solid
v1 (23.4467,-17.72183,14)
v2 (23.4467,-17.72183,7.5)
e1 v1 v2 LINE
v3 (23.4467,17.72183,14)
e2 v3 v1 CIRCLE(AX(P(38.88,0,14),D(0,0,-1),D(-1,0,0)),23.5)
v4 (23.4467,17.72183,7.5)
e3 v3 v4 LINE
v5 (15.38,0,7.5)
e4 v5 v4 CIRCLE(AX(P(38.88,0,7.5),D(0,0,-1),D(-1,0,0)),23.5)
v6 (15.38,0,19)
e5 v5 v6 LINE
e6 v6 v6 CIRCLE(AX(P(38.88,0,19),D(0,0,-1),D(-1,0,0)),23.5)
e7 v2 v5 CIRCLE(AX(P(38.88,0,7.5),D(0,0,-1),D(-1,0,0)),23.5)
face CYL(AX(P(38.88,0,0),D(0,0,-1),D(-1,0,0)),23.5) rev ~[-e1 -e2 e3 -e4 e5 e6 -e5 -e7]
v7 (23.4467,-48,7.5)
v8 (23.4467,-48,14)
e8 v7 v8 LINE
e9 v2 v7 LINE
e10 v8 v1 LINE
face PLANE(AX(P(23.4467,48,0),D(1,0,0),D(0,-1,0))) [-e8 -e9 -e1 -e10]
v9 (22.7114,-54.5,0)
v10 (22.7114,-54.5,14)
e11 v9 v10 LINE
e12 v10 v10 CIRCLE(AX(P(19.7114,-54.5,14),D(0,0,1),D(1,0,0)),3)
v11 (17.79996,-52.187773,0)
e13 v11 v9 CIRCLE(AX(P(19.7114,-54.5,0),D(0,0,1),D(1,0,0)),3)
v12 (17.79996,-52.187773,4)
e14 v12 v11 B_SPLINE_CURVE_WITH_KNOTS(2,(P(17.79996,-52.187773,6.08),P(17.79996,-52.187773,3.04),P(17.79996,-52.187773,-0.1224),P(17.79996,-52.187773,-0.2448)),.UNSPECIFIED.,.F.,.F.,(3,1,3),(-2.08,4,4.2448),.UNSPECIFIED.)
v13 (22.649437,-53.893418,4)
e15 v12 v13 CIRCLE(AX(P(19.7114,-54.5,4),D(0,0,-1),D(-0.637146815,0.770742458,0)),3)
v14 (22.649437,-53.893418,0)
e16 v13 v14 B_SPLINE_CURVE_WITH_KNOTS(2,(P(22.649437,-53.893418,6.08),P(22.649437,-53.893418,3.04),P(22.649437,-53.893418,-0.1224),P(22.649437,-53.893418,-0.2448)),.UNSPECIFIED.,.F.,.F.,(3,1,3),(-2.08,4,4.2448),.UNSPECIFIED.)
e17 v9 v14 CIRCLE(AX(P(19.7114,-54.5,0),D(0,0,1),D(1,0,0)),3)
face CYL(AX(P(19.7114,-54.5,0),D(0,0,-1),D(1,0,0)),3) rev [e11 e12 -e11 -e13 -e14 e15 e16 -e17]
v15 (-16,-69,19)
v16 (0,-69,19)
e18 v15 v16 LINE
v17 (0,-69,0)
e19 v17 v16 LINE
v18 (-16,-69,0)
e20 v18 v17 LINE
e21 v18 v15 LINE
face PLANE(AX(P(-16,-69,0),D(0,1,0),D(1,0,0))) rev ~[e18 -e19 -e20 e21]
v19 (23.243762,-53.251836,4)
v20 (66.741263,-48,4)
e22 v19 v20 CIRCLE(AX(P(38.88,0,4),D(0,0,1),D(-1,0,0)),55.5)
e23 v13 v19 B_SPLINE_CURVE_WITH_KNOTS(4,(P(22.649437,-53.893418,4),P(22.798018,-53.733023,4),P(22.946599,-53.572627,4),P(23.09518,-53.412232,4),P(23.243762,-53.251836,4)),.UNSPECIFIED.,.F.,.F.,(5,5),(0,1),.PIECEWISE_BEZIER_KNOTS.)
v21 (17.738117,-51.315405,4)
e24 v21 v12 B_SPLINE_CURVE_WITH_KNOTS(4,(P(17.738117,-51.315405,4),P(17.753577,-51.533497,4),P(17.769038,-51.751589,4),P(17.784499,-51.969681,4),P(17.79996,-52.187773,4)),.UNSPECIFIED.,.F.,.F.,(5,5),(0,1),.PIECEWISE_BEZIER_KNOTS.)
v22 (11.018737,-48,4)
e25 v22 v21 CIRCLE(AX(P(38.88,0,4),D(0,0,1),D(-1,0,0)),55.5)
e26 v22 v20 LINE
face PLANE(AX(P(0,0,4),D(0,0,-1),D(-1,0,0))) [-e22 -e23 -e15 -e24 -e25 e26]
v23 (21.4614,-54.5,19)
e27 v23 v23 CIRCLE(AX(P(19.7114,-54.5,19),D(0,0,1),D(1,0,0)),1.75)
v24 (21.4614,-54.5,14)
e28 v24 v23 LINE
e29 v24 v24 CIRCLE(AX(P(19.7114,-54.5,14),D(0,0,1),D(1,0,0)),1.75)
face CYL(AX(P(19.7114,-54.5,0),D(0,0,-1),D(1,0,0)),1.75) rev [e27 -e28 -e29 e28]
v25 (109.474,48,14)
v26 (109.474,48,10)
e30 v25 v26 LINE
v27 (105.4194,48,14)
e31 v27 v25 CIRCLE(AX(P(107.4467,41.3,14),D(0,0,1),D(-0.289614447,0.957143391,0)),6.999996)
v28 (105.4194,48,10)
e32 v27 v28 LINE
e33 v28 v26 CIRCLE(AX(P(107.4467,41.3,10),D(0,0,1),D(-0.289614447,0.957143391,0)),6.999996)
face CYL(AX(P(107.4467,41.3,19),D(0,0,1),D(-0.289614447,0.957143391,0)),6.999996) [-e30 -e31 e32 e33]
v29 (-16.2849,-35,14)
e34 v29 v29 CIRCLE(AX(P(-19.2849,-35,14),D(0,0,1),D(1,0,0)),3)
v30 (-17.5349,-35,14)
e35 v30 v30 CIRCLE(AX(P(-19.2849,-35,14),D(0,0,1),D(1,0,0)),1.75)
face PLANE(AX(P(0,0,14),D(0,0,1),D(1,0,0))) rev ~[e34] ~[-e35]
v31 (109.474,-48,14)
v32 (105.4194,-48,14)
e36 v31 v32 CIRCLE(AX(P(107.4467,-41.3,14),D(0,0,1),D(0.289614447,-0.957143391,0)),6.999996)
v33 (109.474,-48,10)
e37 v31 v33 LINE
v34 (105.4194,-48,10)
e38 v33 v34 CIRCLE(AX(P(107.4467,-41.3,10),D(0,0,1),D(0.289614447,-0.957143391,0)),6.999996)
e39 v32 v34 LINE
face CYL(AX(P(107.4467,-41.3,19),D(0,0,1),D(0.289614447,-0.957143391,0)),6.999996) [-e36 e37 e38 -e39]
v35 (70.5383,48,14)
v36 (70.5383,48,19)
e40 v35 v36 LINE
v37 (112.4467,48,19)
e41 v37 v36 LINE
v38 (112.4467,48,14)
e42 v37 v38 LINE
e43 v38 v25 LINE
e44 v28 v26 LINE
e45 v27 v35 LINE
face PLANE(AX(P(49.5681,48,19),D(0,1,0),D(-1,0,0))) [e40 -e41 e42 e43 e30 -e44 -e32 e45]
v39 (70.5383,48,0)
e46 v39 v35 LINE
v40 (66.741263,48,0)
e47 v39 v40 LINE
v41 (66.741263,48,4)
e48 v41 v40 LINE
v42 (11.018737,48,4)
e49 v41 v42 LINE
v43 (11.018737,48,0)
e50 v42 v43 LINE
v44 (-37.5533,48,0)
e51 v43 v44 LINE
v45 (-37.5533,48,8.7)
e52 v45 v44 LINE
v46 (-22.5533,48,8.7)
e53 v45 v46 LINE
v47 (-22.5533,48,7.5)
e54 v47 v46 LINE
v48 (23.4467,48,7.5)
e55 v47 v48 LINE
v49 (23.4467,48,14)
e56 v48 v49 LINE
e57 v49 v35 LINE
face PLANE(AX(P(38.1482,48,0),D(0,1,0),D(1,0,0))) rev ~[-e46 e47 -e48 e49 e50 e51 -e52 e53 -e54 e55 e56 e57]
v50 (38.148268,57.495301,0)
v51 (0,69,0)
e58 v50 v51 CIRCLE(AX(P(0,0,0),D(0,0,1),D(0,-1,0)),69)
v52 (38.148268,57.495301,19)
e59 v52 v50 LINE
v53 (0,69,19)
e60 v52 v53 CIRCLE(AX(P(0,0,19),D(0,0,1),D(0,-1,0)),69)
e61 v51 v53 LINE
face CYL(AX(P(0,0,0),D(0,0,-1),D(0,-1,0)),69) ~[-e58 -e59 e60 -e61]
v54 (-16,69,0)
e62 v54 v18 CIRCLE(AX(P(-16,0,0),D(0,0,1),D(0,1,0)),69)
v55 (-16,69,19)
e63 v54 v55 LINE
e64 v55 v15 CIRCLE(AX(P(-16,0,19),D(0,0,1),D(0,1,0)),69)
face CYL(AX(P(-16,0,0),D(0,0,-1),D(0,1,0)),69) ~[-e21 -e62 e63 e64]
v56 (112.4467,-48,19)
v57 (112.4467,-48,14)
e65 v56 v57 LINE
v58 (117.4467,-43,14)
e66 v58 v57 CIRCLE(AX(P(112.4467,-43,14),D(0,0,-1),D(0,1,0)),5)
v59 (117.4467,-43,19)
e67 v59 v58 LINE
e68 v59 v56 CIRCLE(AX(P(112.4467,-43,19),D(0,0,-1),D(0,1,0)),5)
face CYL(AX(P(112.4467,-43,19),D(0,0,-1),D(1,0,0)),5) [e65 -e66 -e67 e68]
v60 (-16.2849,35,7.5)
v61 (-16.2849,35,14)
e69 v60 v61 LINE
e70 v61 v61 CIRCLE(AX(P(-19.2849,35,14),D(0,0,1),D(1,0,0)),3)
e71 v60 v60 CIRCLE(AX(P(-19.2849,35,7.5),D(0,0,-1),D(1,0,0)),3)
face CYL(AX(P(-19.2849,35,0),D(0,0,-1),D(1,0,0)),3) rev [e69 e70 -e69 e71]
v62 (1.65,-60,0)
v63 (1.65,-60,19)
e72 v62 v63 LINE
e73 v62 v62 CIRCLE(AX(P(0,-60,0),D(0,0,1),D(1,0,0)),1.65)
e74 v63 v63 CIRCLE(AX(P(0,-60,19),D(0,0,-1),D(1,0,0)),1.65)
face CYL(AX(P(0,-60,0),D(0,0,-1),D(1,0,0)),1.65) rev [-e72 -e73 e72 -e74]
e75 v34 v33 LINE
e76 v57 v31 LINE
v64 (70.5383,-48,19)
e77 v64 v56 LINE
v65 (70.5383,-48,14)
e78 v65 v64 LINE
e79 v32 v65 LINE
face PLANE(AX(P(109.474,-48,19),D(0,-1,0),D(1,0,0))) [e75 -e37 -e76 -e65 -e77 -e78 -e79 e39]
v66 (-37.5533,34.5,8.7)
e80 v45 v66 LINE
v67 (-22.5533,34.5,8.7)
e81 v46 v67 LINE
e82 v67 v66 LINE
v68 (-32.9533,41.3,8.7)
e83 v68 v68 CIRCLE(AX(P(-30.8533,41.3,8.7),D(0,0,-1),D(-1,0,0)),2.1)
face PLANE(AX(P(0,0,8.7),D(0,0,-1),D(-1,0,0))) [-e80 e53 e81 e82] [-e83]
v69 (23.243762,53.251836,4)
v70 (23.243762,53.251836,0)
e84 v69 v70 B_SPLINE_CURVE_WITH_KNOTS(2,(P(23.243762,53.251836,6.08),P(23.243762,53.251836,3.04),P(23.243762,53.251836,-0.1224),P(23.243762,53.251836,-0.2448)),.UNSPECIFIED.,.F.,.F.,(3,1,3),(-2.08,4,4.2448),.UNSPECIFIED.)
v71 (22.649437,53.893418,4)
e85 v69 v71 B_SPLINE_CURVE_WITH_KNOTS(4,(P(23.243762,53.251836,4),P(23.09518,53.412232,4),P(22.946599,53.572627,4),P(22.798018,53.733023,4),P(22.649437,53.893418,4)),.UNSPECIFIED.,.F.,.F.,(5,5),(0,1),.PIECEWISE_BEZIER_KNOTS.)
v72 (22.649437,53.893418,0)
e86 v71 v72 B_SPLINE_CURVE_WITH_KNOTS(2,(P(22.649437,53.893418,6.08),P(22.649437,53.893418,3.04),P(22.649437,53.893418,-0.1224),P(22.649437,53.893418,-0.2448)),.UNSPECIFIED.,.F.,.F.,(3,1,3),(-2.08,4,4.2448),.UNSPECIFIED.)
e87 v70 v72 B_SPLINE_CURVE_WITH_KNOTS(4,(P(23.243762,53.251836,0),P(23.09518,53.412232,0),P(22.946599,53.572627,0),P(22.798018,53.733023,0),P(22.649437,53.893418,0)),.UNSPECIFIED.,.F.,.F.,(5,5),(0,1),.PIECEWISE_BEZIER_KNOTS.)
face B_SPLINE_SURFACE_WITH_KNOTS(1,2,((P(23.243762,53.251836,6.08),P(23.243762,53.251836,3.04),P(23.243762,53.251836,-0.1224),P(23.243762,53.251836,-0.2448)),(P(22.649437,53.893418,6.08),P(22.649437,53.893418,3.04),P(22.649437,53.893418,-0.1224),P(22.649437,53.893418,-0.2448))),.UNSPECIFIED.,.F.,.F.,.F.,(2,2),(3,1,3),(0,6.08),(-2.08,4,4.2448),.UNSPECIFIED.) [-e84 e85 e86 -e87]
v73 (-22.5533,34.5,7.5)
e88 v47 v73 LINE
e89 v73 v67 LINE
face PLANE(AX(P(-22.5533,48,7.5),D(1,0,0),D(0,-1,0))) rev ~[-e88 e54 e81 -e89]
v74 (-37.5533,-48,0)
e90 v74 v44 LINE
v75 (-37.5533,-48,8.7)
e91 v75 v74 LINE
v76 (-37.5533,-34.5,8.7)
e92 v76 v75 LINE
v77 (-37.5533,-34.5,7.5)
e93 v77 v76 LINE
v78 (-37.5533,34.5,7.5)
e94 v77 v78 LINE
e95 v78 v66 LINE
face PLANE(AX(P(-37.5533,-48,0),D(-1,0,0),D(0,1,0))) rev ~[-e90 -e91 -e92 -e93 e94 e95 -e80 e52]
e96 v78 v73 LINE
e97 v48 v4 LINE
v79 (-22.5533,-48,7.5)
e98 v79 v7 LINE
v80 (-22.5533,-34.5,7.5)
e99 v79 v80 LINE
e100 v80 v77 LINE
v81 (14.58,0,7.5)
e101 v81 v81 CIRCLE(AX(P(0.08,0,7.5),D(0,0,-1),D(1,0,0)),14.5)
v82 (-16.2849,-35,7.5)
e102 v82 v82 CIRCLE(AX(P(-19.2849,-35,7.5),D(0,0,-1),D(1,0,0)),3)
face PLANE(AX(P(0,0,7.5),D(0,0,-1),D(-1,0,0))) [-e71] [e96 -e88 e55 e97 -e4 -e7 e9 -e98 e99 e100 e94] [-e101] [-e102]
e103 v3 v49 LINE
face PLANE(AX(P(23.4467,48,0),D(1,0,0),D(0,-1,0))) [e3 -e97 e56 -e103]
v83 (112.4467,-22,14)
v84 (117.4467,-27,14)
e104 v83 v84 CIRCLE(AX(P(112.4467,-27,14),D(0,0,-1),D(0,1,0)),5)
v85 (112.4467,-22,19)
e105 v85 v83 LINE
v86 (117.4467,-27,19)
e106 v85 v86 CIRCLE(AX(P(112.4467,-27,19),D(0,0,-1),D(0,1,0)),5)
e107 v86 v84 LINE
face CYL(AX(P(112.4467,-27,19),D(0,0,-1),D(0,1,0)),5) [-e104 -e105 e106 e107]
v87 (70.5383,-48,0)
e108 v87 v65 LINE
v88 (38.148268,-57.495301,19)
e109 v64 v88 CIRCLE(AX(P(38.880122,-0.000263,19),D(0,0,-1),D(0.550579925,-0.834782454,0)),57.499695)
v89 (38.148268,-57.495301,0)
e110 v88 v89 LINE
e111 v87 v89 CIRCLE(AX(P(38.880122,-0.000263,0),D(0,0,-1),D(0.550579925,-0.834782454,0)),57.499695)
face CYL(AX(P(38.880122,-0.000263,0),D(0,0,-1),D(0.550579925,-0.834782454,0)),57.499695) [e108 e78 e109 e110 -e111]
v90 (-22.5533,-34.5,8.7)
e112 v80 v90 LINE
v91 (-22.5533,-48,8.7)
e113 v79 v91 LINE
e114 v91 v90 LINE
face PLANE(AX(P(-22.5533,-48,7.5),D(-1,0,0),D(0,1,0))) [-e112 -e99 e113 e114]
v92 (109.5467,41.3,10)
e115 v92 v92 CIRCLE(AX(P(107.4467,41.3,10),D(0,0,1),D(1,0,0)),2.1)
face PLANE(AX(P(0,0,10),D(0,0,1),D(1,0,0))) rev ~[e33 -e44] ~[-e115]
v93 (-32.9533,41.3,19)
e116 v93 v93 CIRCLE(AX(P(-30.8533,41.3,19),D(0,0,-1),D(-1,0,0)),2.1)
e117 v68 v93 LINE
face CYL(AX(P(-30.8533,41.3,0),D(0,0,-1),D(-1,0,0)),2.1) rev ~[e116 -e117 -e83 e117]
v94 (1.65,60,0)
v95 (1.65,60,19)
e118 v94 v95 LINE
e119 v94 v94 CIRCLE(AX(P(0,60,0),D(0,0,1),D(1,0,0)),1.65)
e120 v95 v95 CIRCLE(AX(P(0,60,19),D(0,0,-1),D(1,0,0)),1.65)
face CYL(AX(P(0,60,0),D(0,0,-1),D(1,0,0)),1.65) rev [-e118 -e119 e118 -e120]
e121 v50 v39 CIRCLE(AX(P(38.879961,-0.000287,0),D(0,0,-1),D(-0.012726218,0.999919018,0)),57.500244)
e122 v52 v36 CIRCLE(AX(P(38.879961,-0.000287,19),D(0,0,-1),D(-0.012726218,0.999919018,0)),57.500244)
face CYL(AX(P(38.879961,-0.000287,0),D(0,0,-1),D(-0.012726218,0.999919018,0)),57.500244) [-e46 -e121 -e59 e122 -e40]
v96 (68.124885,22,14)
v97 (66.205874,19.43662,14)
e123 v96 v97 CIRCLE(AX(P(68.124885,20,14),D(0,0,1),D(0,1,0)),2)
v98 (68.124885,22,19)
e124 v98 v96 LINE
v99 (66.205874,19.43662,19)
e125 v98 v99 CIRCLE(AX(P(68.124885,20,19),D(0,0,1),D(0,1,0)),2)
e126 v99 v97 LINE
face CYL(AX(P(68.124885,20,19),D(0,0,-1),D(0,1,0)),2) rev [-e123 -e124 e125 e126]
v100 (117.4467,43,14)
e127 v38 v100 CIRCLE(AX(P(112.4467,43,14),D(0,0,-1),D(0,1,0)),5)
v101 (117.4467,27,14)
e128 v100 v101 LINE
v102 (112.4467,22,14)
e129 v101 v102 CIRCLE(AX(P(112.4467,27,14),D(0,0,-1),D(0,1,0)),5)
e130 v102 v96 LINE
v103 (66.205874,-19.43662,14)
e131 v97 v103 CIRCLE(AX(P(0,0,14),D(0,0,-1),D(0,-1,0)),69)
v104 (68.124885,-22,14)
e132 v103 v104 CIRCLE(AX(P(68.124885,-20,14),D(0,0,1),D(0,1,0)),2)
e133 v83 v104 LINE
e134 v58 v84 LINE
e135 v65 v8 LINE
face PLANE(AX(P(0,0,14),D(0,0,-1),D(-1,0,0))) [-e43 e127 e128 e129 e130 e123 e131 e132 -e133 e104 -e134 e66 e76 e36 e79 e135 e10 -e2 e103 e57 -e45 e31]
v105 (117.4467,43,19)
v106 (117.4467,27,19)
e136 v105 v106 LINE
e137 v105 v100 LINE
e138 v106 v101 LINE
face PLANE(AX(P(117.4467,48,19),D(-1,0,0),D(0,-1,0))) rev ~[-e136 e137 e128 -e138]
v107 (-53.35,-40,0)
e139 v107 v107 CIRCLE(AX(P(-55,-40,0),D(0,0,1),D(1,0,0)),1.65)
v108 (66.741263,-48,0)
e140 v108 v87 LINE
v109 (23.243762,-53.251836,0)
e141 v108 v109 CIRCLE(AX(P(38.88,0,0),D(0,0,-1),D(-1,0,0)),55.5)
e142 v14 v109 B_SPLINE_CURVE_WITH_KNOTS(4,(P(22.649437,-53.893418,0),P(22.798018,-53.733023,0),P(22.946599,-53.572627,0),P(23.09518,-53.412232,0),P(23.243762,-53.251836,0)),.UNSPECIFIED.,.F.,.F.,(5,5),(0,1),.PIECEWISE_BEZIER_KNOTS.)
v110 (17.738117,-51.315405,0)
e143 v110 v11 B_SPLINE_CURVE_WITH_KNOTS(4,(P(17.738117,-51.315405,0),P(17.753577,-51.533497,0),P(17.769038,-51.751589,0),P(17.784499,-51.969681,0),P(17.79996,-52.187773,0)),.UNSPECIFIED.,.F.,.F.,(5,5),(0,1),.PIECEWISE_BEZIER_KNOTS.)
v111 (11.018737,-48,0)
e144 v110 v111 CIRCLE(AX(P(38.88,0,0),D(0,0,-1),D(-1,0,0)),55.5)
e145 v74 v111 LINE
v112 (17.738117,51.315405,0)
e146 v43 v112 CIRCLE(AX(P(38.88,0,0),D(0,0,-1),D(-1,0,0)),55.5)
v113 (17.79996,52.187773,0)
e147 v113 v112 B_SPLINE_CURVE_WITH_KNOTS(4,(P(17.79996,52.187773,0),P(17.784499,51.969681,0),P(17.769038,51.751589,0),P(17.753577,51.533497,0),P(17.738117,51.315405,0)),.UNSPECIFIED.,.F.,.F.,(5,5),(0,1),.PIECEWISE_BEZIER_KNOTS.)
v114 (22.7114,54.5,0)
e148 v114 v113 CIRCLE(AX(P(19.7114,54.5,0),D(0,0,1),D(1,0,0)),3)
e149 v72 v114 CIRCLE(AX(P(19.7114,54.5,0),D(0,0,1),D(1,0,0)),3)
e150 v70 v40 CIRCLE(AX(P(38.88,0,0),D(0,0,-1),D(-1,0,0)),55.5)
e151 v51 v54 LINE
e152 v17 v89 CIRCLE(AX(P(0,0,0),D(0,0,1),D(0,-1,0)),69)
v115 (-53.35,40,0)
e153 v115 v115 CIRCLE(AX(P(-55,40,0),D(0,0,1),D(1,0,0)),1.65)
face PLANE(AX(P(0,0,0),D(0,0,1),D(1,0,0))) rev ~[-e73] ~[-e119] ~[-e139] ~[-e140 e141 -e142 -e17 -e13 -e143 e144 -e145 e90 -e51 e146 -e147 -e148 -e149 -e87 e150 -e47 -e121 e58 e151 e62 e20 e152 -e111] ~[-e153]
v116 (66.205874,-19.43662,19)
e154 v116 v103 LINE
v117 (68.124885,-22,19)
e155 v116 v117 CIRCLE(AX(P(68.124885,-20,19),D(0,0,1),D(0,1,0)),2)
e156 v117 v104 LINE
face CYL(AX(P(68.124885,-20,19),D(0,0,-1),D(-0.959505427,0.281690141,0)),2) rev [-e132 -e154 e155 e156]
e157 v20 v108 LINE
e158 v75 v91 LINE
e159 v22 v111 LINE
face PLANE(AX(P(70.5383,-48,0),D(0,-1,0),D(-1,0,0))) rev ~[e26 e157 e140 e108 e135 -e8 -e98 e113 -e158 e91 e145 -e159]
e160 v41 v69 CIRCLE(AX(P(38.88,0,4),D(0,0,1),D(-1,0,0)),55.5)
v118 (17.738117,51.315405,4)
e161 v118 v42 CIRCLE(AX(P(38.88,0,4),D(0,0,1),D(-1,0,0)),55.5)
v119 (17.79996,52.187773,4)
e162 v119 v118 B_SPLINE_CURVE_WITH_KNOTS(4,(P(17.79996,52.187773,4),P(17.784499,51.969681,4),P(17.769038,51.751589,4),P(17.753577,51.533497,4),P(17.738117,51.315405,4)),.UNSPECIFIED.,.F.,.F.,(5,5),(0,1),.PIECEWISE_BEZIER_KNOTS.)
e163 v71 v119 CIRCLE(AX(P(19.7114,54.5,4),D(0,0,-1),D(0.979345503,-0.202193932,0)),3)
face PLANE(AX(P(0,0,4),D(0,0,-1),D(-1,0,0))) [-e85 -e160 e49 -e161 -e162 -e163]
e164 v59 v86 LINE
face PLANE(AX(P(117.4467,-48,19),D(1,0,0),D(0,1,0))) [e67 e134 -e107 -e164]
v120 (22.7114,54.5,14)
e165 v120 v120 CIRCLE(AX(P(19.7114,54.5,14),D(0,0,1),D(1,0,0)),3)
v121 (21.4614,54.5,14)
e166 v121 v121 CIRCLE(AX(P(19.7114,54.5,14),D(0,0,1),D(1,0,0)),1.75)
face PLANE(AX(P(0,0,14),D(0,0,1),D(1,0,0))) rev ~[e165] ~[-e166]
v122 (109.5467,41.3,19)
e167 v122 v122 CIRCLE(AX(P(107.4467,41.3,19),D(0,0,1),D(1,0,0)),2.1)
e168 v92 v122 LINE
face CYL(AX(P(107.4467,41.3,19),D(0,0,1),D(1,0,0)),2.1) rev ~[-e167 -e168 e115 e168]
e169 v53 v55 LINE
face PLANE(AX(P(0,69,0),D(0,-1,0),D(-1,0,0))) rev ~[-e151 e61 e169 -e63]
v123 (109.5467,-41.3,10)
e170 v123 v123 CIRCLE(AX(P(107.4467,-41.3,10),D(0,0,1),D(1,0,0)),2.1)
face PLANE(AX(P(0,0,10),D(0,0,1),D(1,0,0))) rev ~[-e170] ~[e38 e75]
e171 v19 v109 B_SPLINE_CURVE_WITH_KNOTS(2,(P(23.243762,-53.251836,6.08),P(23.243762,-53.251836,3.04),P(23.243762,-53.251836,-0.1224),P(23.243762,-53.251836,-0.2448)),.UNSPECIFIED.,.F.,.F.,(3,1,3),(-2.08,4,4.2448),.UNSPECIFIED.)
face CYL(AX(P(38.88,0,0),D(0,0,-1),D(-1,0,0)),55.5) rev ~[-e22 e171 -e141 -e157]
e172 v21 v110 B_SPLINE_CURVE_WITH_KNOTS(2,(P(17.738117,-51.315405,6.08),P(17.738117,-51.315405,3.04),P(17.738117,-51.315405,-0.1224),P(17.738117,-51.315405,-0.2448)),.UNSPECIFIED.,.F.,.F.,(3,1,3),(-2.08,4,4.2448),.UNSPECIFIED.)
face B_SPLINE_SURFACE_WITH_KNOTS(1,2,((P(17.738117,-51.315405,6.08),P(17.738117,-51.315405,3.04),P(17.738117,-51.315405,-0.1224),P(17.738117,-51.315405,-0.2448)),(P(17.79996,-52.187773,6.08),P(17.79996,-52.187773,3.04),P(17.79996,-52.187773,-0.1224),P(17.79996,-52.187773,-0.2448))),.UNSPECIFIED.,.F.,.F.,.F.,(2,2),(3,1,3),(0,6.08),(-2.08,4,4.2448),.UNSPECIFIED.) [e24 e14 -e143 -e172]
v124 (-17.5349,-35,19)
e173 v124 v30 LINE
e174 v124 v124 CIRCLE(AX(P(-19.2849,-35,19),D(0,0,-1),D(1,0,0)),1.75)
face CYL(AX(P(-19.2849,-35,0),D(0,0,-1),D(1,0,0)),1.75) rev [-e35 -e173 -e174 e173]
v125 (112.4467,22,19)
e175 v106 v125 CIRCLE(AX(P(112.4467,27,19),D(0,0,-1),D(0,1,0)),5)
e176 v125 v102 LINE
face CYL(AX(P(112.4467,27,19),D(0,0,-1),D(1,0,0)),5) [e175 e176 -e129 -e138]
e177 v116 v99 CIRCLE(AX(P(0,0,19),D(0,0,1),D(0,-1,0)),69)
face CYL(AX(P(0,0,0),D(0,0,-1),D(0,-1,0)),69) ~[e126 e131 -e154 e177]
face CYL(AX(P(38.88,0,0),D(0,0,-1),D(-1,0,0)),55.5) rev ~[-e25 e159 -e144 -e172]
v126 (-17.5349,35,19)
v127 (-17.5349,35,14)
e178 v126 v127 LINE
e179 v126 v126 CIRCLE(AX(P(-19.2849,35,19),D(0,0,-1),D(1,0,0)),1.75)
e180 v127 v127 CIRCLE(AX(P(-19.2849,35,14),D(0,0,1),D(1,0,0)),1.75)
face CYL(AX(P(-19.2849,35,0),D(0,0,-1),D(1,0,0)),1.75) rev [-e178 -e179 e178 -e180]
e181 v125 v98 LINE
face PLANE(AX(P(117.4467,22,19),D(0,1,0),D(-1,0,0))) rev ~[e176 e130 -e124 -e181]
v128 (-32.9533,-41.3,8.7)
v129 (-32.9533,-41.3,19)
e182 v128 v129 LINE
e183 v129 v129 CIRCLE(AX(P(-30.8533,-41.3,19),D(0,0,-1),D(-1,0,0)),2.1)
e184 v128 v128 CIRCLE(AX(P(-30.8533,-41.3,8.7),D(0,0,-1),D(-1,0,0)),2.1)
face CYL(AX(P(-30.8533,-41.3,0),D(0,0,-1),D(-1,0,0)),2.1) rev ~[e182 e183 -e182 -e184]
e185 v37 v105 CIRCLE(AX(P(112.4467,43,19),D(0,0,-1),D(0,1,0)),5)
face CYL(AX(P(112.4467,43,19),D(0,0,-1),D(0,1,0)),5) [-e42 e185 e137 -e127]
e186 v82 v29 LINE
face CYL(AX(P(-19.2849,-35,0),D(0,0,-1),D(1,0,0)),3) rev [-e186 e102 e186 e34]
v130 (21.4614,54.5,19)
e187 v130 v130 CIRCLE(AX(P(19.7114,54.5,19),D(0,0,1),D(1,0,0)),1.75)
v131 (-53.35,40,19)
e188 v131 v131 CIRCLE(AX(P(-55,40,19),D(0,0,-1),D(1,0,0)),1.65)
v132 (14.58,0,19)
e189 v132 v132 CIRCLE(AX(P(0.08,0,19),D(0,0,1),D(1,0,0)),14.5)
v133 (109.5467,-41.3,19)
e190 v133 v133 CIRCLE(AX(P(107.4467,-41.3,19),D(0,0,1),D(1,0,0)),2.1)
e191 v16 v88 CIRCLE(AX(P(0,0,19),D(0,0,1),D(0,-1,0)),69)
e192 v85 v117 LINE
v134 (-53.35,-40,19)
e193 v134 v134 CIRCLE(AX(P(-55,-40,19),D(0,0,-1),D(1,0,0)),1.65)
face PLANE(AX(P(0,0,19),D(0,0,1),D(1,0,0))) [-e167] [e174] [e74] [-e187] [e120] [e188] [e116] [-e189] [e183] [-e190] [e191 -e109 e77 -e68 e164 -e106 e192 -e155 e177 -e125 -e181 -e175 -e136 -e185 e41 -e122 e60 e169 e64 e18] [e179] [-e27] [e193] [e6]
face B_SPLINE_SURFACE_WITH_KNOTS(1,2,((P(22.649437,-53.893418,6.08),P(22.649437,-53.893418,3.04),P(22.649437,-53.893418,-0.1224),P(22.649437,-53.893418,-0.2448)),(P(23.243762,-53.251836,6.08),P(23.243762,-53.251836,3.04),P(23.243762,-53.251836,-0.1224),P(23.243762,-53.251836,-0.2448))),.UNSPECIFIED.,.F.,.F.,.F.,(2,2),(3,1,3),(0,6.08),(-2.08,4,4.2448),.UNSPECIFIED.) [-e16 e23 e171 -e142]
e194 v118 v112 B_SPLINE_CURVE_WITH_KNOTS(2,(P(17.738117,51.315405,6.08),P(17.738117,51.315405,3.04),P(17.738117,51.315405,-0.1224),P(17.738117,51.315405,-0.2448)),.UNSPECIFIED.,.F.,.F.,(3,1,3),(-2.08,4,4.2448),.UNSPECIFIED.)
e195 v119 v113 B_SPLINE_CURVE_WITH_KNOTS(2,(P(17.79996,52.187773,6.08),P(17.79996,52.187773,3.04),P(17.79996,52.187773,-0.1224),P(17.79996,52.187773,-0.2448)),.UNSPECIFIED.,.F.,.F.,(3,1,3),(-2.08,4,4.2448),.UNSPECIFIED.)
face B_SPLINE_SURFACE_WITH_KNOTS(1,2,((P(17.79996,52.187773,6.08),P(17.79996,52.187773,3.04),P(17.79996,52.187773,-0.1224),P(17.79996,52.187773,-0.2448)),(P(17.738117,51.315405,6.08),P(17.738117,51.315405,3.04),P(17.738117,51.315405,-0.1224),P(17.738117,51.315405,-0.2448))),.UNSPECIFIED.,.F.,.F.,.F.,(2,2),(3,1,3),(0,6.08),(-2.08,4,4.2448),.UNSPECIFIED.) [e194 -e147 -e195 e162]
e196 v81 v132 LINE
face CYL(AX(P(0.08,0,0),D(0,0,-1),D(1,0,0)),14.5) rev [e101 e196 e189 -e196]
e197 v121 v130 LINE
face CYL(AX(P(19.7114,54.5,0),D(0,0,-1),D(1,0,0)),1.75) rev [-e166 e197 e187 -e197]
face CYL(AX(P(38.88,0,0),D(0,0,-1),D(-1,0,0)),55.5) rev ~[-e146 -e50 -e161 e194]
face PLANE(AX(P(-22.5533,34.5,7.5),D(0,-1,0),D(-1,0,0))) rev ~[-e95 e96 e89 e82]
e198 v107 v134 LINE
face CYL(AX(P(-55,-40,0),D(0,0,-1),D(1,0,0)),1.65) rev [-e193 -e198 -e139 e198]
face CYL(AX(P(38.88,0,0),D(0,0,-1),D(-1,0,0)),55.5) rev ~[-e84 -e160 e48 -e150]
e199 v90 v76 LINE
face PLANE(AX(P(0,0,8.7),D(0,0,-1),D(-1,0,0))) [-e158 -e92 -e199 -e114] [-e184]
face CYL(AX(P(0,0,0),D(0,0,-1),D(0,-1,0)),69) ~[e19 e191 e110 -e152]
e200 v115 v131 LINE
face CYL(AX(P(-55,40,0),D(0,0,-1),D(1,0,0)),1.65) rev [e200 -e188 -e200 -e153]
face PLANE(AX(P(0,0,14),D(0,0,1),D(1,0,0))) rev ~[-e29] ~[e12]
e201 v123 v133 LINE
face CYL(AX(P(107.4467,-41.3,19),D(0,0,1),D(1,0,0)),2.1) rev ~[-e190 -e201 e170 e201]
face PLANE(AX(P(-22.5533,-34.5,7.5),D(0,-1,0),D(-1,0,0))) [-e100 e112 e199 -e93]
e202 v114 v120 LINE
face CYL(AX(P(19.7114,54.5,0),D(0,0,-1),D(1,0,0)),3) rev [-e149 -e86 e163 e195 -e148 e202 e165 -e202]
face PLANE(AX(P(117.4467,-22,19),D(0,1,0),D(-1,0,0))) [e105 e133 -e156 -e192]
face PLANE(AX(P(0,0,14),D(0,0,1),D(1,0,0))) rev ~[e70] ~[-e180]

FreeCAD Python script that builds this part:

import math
import FreeCAD as App
import Part
import Sketcher

V = App.Vector


def edges_at(feature, points):
    """Names of the edges that pass closest to the given points."""
    edges = feature.Shape.Edges
    near = lambda p: min(range(len(edges)), key=lambda i: edges[i].distToShape(Part.Vertex(*p))[0])
    return sorted({f"Edge{near(p) + 1}" for p in points})

doc = App.newDocument("Part")
body = doc.addObject("PartDesign::Body", "Body")

sketch1 = doc.addObject("Sketcher::SketchObject", "Sketch")
body.addObject(sketch1)
sketch1.AttachmentSupport = (doc.XY_Plane, [""])
sketch1.MapMode = "FlatFace"
sketch1.addGeometry([
    Part.ArcOfCircle(Part.Circle(V(-16, 0, 0), V(0, 0, 1), 69), math.radians(90), math.radians(270)),
    Part.LineSegment(V(-16, -69, 0), V(0, -69, 0)),
    Part.ArcOfCircle(Part.Circle(V(0, 0, 0), V(0, 0, 1), 69), math.radians(-90), math.radians(90)),
    Part.LineSegment(V(0, 69, 0), V(-16, 69, 0)),
    Part.Circle(V(0.1, 0, 0), V(0, 0, 1), 14.5),
    Part.Circle(V(-19.3, -35, 0), V(0, 0, 1), 1.8),
    Part.Circle(V(19.7, -54.5, 0), V(0, 0, 1), 1.8),
    Part.Circle(V(-19.3, 35, 0), V(0, 0, 1), 1.8),
    Part.Circle(V(19.7, 54.5, 0), V(0, 0, 1), 1.8),
], False)
sketch1.addConstraint([
    Sketcher.Constraint("Tangent", 0, 2, 1, 1),
    Sketcher.Constraint("Tangent", 1, 2, 2, 1),
    Sketcher.Constraint("Tangent", 2, 2, 3, 1),
    Sketcher.Constraint("Tangent", 3, 2, 0, 1),
    Sketcher.Constraint("Horizontal", 1),
    Sketcher.Constraint("Horizontal", 3),
    Sketcher.Constraint("Coincident", 2, 3, -1, 1),
    Sketcher.Constraint("Equal", 5, 6),
    Sketcher.Constraint("Equal", 6, 7),
    Sketcher.Constraint("Equal", 7, 8),
    Sketcher.Constraint("Symmetric", 5, 3, 7, 3, -1),
    Sketcher.Constraint("Symmetric", 6, 3, 8, 3, -1),
    Sketcher.Constraint("PointOnObject", 4, 3, -1),
    Sketcher.Constraint("Diameter", 4, 29.0),
    Sketcher.Constraint("Radius", 0, 69.0),
    Sketcher.Constraint("Diameter", 5, 3.5),
    Sketcher.Constraint("DistanceY", 5, 3, 7, 3, 70.0),
    Sketcher.Constraint("DistanceX", 1, 1, 1, 2, 16.0),
    Sketcher.Constraint("DistanceY", 6, 3, -1, 1, 54.5),
    Sketcher.Constraint("DistanceX", -1, 1, 4, 3, 0.08),
    Sketcher.Constraint("DistanceX", 5, 3, -1, 1, 19.285),
    Sketcher.Constraint("DistanceX", -1, 1, 6, 3, 19.7114),
])
pad1 = doc.addObject("PartDesign::Pad", "Pad")
body.addObject(pad1)
pad1.Profile = sketch1
pad1.Length = 19

sketch2 = doc.addObject("Sketcher::SketchObject", "Sketch001")
body.addObject(sketch2)
sketch2.AttachmentSupport = (doc.XY_Plane, [""])
sketch2.MapMode = "FlatFace"
sketch2.addGeometry([
    Part.LineSegment(V(23.4, 48, 0), V(142.6, 48, 0)),
    Part.LineSegment(V(142.6, 48, 0), V(142.6, -48, 0)),
    Part.LineSegment(V(142.6, -48, 0), V(23.4, -48, 0)),
    Part.LineSegment(V(23.4, -48, 0), V(23.4, 48, 0)),
    Part.Circle(V(107.4, 41.3, 0), V(0, 0, 1), 2.1),
    Part.Circle(V(107.4, -41.3, 0), V(0, 0, 1), 2.1),
], False)
sketch2.addConstraint([
    Sketcher.Constraint("Coincident", 0, 2, 1, 1),
    Sketcher.Constraint("Coincident", 1, 2, 2, 1),
    Sketcher.Constraint("Coincident", 2, 2, 3, 1),
    Sketcher.Constraint("Coincident", 3, 2, 0, 1),
    Sketcher.Constraint("Horizontal", 0),
    Sketcher.Constraint("Vertical", 1),
    Sketcher.Constraint("Horizontal", 2),
    Sketcher.Constraint("Vertical", 3),
    Sketcher.Constraint("Equal", 4, 5),
    Sketcher.Constraint("Symmetric", 4, 3, 5, 3, -1),
    Sketcher.Constraint("Diameter", 4, 4.2),
    Sketcher.Constraint("DistanceY", 1, 2, 1, 1, 96.0),
    Sketcher.Constraint("DistanceY", 5, 3, 4, 3, 82.6),
    Sketcher.Constraint("DistanceX", 0, 1, 0, 2, 119.2),
    Sketcher.Constraint("DistanceY", -1, 1, 0, 2, 48.0),
    Sketcher.Constraint("DistanceX", 2, 2, 5, 3, 84.0),
    Sketcher.Constraint("DistanceX", -1, 1, 4, 3, 107.4467),
])
pocket1 = doc.addObject("PartDesign::Pocket", "Pocket")
body.addObject(pocket1)
pocket1.Profile = sketch2
pocket1.Length = 14
pocket1.Reversed = True

sketch3 = doc.addObject("Sketcher::SketchObject", "Sketch002")
body.addObject(sketch3)
sketch3.AttachmentSupport = (doc.XY_Plane, [""])
sketch3.MapMode = "FlatFace"
sketch3.addGeometry([
    Part.LineSegment(V(23.4, 48, 0), V(23.4, -48, 0)),
    Part.LineSegment(V(23.4, -48, 0), V(-37.6, -48, 0)),
    Part.LineSegment(V(-37.6, -48, 0), V(-37.6, 48, 0)),
    Part.LineSegment(V(-37.6, 48, 0), V(23.4, 48, 0)),
    Part.Circle(V(0.1, 0, 0), V(0, 0, 1), 14.5),
    Part.Circle(V(-30.9, 41.3, 0), V(0, 0, 1), 2.1),
    Part.Circle(V(-30.9, -41.3, 0), V(0, 0, 1), 2.1),
], False)
sketch3.addConstraint([
    Sketcher.Constraint("Coincident", 0, 2, 1, 1),
    Sketcher.Constraint("Coincident", 1, 2, 2, 1),
    Sketcher.Constraint("Coincident", 2, 2, 3, 1),
    Sketcher.Constraint("Coincident", 3, 2, 0, 1),
    Sketcher.Constraint("Vertical", 0),
    Sketcher.Constraint("Horizontal", 1),
    Sketcher.Constraint("Vertical", 2),
    Sketcher.Constraint("Horizontal", 3),
    Sketcher.Constraint("Equal", 5, 6),
    Sketcher.Constraint("Symmetric", 5, 3, 6, 3, -1),
    Sketcher.Constraint("PointOnObject", 4, 3, -1),
    Sketcher.Constraint("Diameter", 5, 4.2),
    Sketcher.Constraint("DistanceX", 1, 2, 1, 1, 61.0),
    Sketcher.Constraint("DistanceY", 0, 2, 0, 1, 96.0),
    Sketcher.Constraint("Diameter", 4, 29.0),
    Sketcher.Constraint("DistanceY", 6, 3, 5, 3, 82.6),
    Sketcher.Constraint("DistanceY", 0, 2, -1, 1, 48.0),
    Sketcher.Constraint("DistanceX", 6, 3, 0, 2, 54.3),
    Sketcher.Constraint("DistanceX", -1, 1, 4, 3, 0.08),
    Sketcher.Constraint("DistanceX", 5, 3, -1, 1, 30.8533),
])
pocket2 = doc.addObject("PartDesign::Pocket", "Pocket001")
body.addObject(pocket2)
pocket2.Profile = sketch3
pocket2.Length = 7.5
pocket2.Reversed = True

sketch4 = doc.addObject("Sketcher::SketchObject", "Sketch003")
body.addObject(sketch4)
sketch4.AttachmentSupport = (doc.XY_Plane, [""])
sketch4.MapMode = "FlatFace"
sketch4.addGeometry([
    Part.Circle(V(-30.9, 41.3, 0), V(0, 0, 1), 2.1),
    Part.Circle(V(-30.9, -41.3, 0), V(0, 0, 1), 2.1),
], False)
sketch4.addConstraint([
    Sketcher.Constraint("Equal", 0, 1),
    Sketcher.Constraint("Symmetric", 0, 3, 1, 3, -1),
    Sketcher.Constraint("Diameter", 0, 4.2),
    Sketcher.Constraint("DistanceY", 1, 3, 0, 3, 82.6),
    Sketcher.Constraint("DistanceX", 0, 3, -1, 1, 30.8533),
])
pocket3 = doc.addObject("PartDesign::Pocket", "Pocket002")
body.addObject(pocket3)
pocket3.Profile = sketch4
pocket3.Type = "ThroughAll"
pocket3.Reversed = True

sketch5 = doc.addObject("Sketcher::SketchObject", "Sketch004")
body.addObject(sketch5)
sketch5.AttachmentSupport = (doc.XY_Plane, [""])
sketch5.MapMode = "FlatFace"
sketch5.AttachmentOffset = App.Placement(V(0, 0, 19), App.Rotation())
sketch5.addGeometry([
    Part.LineSegment(V(-37.6, 48, 0), V(-37.6, 22, 0)),
    Part.LineSegment(V(-37.6, 22, 0), V(117.4, 22, 0)),
    Part.LineSegment(V(117.4, 22, 0), V(117.4, 48, 0)),
    Part.LineSegment(V(117.4, 48, 0), V(-37.6, 48, 0)),
    Part.Circle(V(107.4, 41.3, 0), V(0, 0, 1), 2.1),
    Part.LineSegment(V(117.4, -22, 0), V(-37.6, -22, 0)),
    Part.LineSegment(V(-37.6, -22, 0), V(-37.6, -48, 0)),
    Part.LineSegment(V(-37.6, -48, 0), V(117.4, -48, 0)),
    Part.LineSegment(V(117.4, -48, 0), V(117.4, -22, 0)),
    Part.Circle(V(107.4, -41.3, 0), V(0, 0, 1), 2.1),
], False)
sketch5.addConstraint([
    Sketcher.Constraint("Coincident", 0, 2, 1, 1),
    Sketcher.Constraint("Coincident", 1, 2, 2, 1),
    Sketcher.Constraint("Coincident", 2, 2, 3, 1),
    Sketcher.Constraint("Coincident", 3, 2, 0, 1),
    Sketcher.Constraint("Coincident", 5, 2, 6, 1),
    Sketcher.Constraint("Coincident", 6, 2, 7, 1),
    Sketcher.Constraint("Coincident", 7, 2, 8, 1),
    Sketcher.Constraint("Coincident", 8, 2, 5, 1),
    Sketcher.Constraint("Vertical", 0),
    Sketcher.Constraint("Horizontal", 1),
    Sketcher.Constraint("Vertical", 2),
    Sketcher.Constraint("Horizontal", 3),
    Sketcher.Constraint("Horizontal", 5),
    Sketcher.Constraint("Vertical", 6),
    Sketcher.Constraint("Horizontal", 7),
    Sketcher.Constraint("Vertical", 8),
    Sketcher.Constraint("Equal", 4, 9),
    Sketcher.Constraint("Symmetric", 4, 3, 9, 3, -1),
    Sketcher.Constraint("Symmetric", 0, 2, 5, 2, -1),
    Sketcher.Constraint("Symmetric", 2, 2, 7, 2, -1),
    Sketcher.Constraint("DistanceX", 1, 1, 1, 2, 155.0),
    Sketcher.Constraint("DistanceY", 0, 2, 0, 1, 26.0),
    Sketcher.Constraint("Diameter", 4, 4.2),
    Sketcher.Constraint("DistanceY", -1, 1, 0, 2, 22.0),
    Sketcher.Constraint("DistanceX", 0, 2, 4, 3, 145.0),
    Sketcher.Constraint("DistanceY", -1, 1, 4, 3, 41.3),
    Sketcher.Constraint("DistanceX", -1, 1, 4, 3, 107.4467),
])
pad2 = doc.addObject("PartDesign::Pad", "Pad001")
body.addObject(pad2)
pad2.Profile = sketch5
pad2.Length = 5
pad2.Reversed = True

sketch6 = doc.addObject("Sketcher::SketchObject", "Sketch005")
body.addObject(sketch6)
sketch6.AttachmentSupport = (doc.XY_Plane, [""])
sketch6.MapMode = "FlatFace"
sketch6.AttachmentOffset = App.Placement(V(0, 0, 19), App.Rotation())
sketch6.addGeometry([
    Part.LineSegment(V(109.5, 48, 0), V(105.4, 48, 0)),
    Part.ArcOfCircle(Part.Circle(V(107.4, 41.3, 0), V(0, 0, 1), 7), math.radians(107), math.radians(433)),
    Part.Circle(V(107.4, 41.3, 0), V(0, 0, 1), 2.1),
    Part.ArcOfCircle(Part.Circle(V(107.4, -41.3, 0), V(0, 0, 1), 7), math.radians(-73), math.radians(253)),
    Part.LineSegment(V(105.4, -48, 0), V(109.5, -48, 0)),
    Part.Circle(V(107.4, -41.3, 0), V(0, 0, 1), 2.1),
], False)
sketch6.addConstraint([
    Sketcher.Constraint("Coincident", 0, 1, 1, 2),
    Sketcher.Constraint("Coincident", 1, 1, 0, 2),
    Sketcher.Constraint("Coincident", 3, 1, 4, 2),
    Sketcher.Constraint("Coincident", 4, 1, 3, 2),
    Sketcher.Constraint("Horizontal", 0),
    Sketcher.Constraint("Horizontal", 4),
    Sketcher.Constraint("Coincident", 2, 3, 1, 3),
    Sketcher.Constraint("Coincident", 5, 3, 3, 3),
    Sketcher.Constraint("Equal", 1, 3),
    Sketcher.Constraint("Equal", 2, 5),
    Sketcher.Constraint("Symmetric", 1, 3, 3, 3, -1),
    Sketcher.Constraint("Vertical", 0, 1, 3, 1),
    Sketcher.Constraint("Radius", 1, 7.0),
    Sketcher.Constraint("Diameter", 2, 4.2),
    Sketcher.Constraint("DistanceY", -1, 1, 0, 1, 48.0),
    Sketcher.Constraint("DistanceY", -1, 1, 1, 3, 41.3),
    Sketcher.Constraint("DistanceX", -1, 1, 0, 1, 109.474),
])
pad3 = doc.addObject("PartDesign::Pad", "Pad002")
body.addObject(pad3)
pad3.Profile = sketch6
pad3.Length = 9
pad3.Reversed = True

sketch7 = doc.addObject("Sketcher::SketchObject", "Sketch006")
body.addObject(sketch7)
sketch7.AttachmentSupport = (doc.XY_Plane, [""])
sketch7.MapMode = "FlatFace"
sketch7.addGeometry(Part.Circle(V(39, 0, 0), V(0, 0, 1), 24), False)
sketch7.addConstraint([
    Sketcher.Constraint("PointOnObject", 0, 3, -1),
    Sketcher.Constraint("Diameter", 0, 47.0),
    Sketcher.Constraint("DistanceX", -1, 1, 0, 3, 38.88),
])
pocket4 = doc.addObject("PartDesign::Pocket", "Pocket003")
body.addObject(pocket4)
pocket4.Profile = sketch7
pocket4.Type = "ThroughAll"
pocket4.Reversed = True

sketch8 = doc.addObject("Sketcher::SketchObject", "Sketch007")
body.addObject(sketch8)
sketch8.AttachmentSupport = (doc.XY_Plane, [""])
sketch8.MapMode = "FlatFace"
sketch8.addGeometry([
    Part.Circle(V(-30.9, 41.3, 0), V(0, 0, 1), 2.1),
    Part.Circle(V(-30.9, -41.3, 0), V(0, 0, 1), 2.1),
], False)
sketch8.addConstraint([
    Sketcher.Constraint("Equal", 0, 1),
    Sketcher.Constraint("Symmetric", 0, 3, 1, 3, -1),
    Sketcher.Constraint("Diameter", 0, 4.2),
    Sketcher.Constraint("DistanceY", 1, 3, 0, 3, 82.6),
    Sketcher.Constraint("DistanceX", 0, 3, -1, 1, 30.8533),
])
pocket5 = doc.addObject("PartDesign::Pocket", "Pocket004")
body.addObject(pocket5)
pocket5.Profile = sketch8
pocket5.Type = "ThroughAll"
pocket5.Reversed = True

sketch9 = doc.addObject("Sketcher::SketchObject", "Sketch008")
body.addObject(sketch9)
sketch9.AttachmentSupport = (doc.XY_Plane, [""])
sketch9.MapMode = "FlatFace"
sketch9.addGeometry([
    Part.Circle(V(-19.3, 35, 0), V(0, 0, 1), 1.8),
    Part.Circle(V(-19.3, -35, 0), V(0, 0, 1), 1.8),
], False)
sketch9.addConstraint([
    Sketcher.Constraint("Equal", 0, 1),
    Sketcher.Constraint("Symmetric", 0, 3, 1, 3, -1),
    Sketcher.Constraint("Diameter", 0, 3.5),
    Sketcher.Constraint("DistanceY", 1, 3, 0, 3, 70.0),
    Sketcher.Constraint("DistanceX", 0, 3, -1, 1, 19.285),
])
pocket6 = doc.addObject("PartDesign::Pocket", "Pocket005")
body.addObject(pocket6)
pocket6.Profile = sketch9
pocket6.Type = "ThroughAll"
pocket6.Reversed = True

sketch10 = doc.addObject("Sketcher::SketchObject", "Sketch009")
body.addObject(sketch10)
sketch10.AttachmentSupport = (doc.XY_Plane, [""])
sketch10.MapMode = "FlatFace"
sketch10.addGeometry([
    Part.Circle(V(-19.3, 35, 0), V(0, 0, 1), 3),
    Part.Circle(V(-19.3, 35, 0), V(0, 0, 1), 1.8),
    Part.Circle(V(-19.3, -35, 0), V(0, 0, 1), 3),
    Part.Circle(V(-19.3, -35, 0), V(0, 0, 1), 1.8),
    Part.Circle(V(19.7, 54.5, 0), V(0, 0, 1), 3),
    Part.Circle(V(19.7, 54.5, 0), V(0, 0, 1), 1.8),
    Part.Circle(V(19.7, -54.5, 0), V(0, 0, 1), 3),
    Part.Circle(V(19.7, -54.5, 0), V(0, 0, 1), 1.8),
], False)
sketch10.addConstraint([
    Sketcher.Constraint("Coincident", 1, 3, 0, 3),
    Sketcher.Constraint("Coincident", 3, 3, 2, 3),
    Sketcher.Constraint("Coincident", 5, 3, 4, 3),
    Sketcher.Constraint("Coincident", 7, 3, 6, 3),
    Sketcher.Constraint("Equal", 0, 2),
    Sketcher.Constraint("Equal", 1, 3),
    Sketcher.Constraint("Equal", 2, 4),
    Sketcher.Constraint("Equal", 3, 5),
    Sketcher.Constraint("Equal", 4, 6),
    Sketcher.Constraint("Equal", 5, 7),
    Sketcher.Constraint("Symmetric", 0, 3, 2, 3, -1),
    Sketcher.Constraint("Symmetric", 4, 3, 6, 3, -1),
    Sketcher.Constraint("Diameter", 0, 6.0),
    Sketcher.Constraint("Diameter", 1, 3.5),
    Sketcher.Constraint("DistanceY", 2, 3, 0, 3, 70.0),
    Sketcher.Constraint("DistanceY", 6, 3, 4, 3, 109.0),
    Sketcher.Constraint("DistanceX", 0, 3, -1, 1, 19.285),
    Sketcher.Constraint("DistanceX", -1, 1, 4, 3, 19.7114),
])
pocket7 = doc.addObject("PartDesign::Pocket", "Pocket006")
body.addObject(pocket7)
pocket7.Profile = sketch10
pocket7.Length = 14
pocket7.Reversed = True

sketch11 = doc.addObject("Sketcher::SketchObject", "Sketch010")
body.addObject(sketch11)
sketch11.AttachmentSupport = (doc.XY_Plane, [""])
sketch11.MapMode = "FlatFace"
sketch11.addGeometry([
    Part.Circle(V(-55, 40, 0), V(0, 0, 1), 1.6),
    Part.Circle(V(-55, -40, 0), V(0, 0, 1), 1.6),
    Part.Circle(V(0, -60, 0), V(0, 0, 1), 1.6),
    Part.Circle(V(0, 60, 0), V(0, 0, 1), 1.6),
], False)
sketch11.addConstraint([
    Sketcher.Constraint("Equal", 0, 1),
    Sketcher.Constraint("Equal", 1, 2),
    Sketcher.Constraint("Equal", 2, 3),
    Sketcher.Constraint("Symmetric", 2, 3, 3, 3, -1, 1),
    Sketcher.Constraint("Symmetric", 0, 3, 1, 3, -1),
    Sketcher.Constraint("PointOnObject", 2, 3, -2),
    Sketcher.Constraint("Diameter", 0, 3.3),
    Sketcher.Constraint("DistanceY", -1, 1, 0, 3, 40.0),
    Sketcher.Constraint("DistanceY", 2, 3, 3, 3, 120.0),
    Sketcher.Constraint("DistanceX", 0, 3, -1, 1, 55.0),
])
pocket8 = doc.addObject("PartDesign::Pocket", "Pocket007")
body.addObject(pocket8)
pocket8.Profile = sketch11
pocket8.Type = "ThroughAll"
pocket8.Reversed = True
doc.recompute()

fillet = doc.addObject("PartDesign::Fillet", "Fillet")
body.addObject(fillet)
fillet.Base = (pocket8, edges_at(pocket8, [(117.447, 48, 16.5)]))
fillet.Radius = 5
doc.recompute()

fillet2 = doc.addObject("PartDesign::Fillet", "Fillet001")
body.addObject(fillet2)
fillet2.Base = (fillet, edges_at(fillet, [(117.447, 22, 16.5), (117.447, -22, 16.5), (117.447, -48, 16.5)]))
fillet2.Radius = 5
doc.recompute()

fillet3 = doc.addObject("PartDesign::Fillet", "Fillet002")
body.addObject(fillet3)
fillet3.Base = (fillet2, edges_at(fillet2, [(65.399, 22, 16.5), (65.399, -22, 16.5)]))
fillet3.Radius = 2

sketch12 = doc.addObject("Sketcher::SketchObject", "Sketch011")
body.addObject(sketch12)
sketch12.AttachmentSupport = (doc.XY_Plane, [""])
sketch12.MapMode = "FlatFace"
sketch12.addGeometry([
    Part.LineSegment(V(38, 48, 0), V(38, 57, 0)),
    Part.ArcOfCircle(Part.Circle(V(39, 0, 0), V(0, 0, 1), 57), math.radians(57), math.radians(91)),
    Part.LineSegment(V(71, 48, 0), V(38, 48, 0)),
    Part.LineSegment(V(38, -57, 0), V(38, -48, 0)),
    Part.LineSegment(V(38, -48, 0), V(71, -48, 0)),
    Part.ArcOfCircle(Part.Circle(V(39, 0, 0), V(0, 0, 1), 57), math.radians(-91), math.radians(-57)),
], False)
sketch12.addConstraint([
    Sketcher.Constraint("Coincident", 0, 2, 1, 2),
    Sketcher.Constraint("Coincident", 1, 1, 2, 1),
    Sketcher.Constraint("Coincident", 2, 2, 0, 1),
    Sketcher.Constraint("Coincident", 3, 2, 4, 1),
    Sketcher.Constraint("Coincident", 4, 2, 5, 2),
    Sketcher.Constraint("Coincident", 5, 1, 3, 1),
    Sketcher.Constraint("Vertical", 0),
    Sketcher.Constraint("Horizontal", 2),
    Sketcher.Constraint("Vertical", 3),
    Sketcher.Constraint("Horizontal", 4),
    Sketcher.Constraint("Coincident", 5, 3, 1, 3),
    Sketcher.Constraint("Equal", 1, 5),
    Sketcher.Constraint("Symmetric", 2, 2, 3, 2, -1),
    Sketcher.Constraint("PointOnObject", 1, 3, -1),
    Sketcher.Constraint("DistanceY", 3, 2, 2, 2, 96.0),
    Sketcher.Constraint("Radius", 1, 57.5),
    Sketcher.Constraint("DistanceX", 2, 2, 2, 1, 32.39),
    Sketcher.Constraint("DistanceX", -1, 1, 1, 3, 38.88),
])
pad4 = doc.addObject("PartDesign::Pad", "Pad003")
body.addObject(pad4)
pad4.Profile = sketch12
pad4.Length = 19

sketch13 = doc.addObject("Sketcher::SketchObject", "Sketch012")
body.addObject(sketch13)
sketch13.AttachmentSupport = (doc.XY_Plane, [""])
sketch13.MapMode = "FlatFace"
sketch13.addGeometry([
    Part.Circle(V(39, 0, 0), V(0, 0, 1), 56),
    Part.Circle(V(39, 0, 0), V(0, 0, 1), 24),
    Part.Circle(V(0, 0, 0), V(0, 0, 1), 14),
], False)
sketch13.addConstraint([
    Sketcher.Constraint("Coincident", 1, 3, 0, 3),
    Sketcher.Constraint("PointOnObject", 0, 3, -1),
    Sketcher.Constraint("PointOnObject", 2, 3, -1),
    Sketcher.Constraint("Diameter", 0, 111.0),
    Sketcher.Constraint("Diameter", 1, 47.0),
    Sketcher.Constraint("Diameter", 2, 29.0),
    Sketcher.Constraint("DistanceX", 2, 3, 0, 3, 38.8),
    Sketcher.Constraint("DistanceX", -1, 1, 0, 3, 38.88),
])
pocket9 = doc.addObject("PartDesign::Pocket", "Pocket008")
body.addObject(pocket9)
pocket9.Profile = sketch13
pocket9.Length = 4
pocket9.Reversed = True
doc.recompute()

chamfer = doc.addObject("PartDesign::Chamfer", "Chamfer")
body.addObject(chamfer)
chamfer.Base = (pocket9, edges_at(pocket9, [
    (22.287, 52.962, 2),
    (18.666, 51.688, 2),
    (18.666, -51.688, 2),
    (22.287, -52.962, 2),
]))
chamfer.Size = 1

sketch14 = doc.addObject("Sketcher::SketchObject", "Sketch013")
body.addObject(sketch14)
sketch14.AttachmentSupport = (doc.XY_Plane, [""])
sketch14.MapMode = "FlatFace"
sketch14.AttachmentOffset = App.Placement(V(0, 0, 7.5), App.Rotation())
sketch14.addGeometry([
    Part.LineSegment(V(-38, -48, 0), V(-38, -34, 0)),
    Part.LineSegment(V(-38, -34, 0), V(-23, -34, 0)),
    Part.LineSegment(V(-23, -34, 0), V(-23, -48, 0)),
    Part.LineSegment(V(-23, -48, 0), V(-38, -48, 0)),
    Part.LineSegment(V(-38, 34, 0), V(-38, 48, 0)),
    Part.LineSegment(V(-38, 48, 0), V(-23, 48, 0)),
    Part.LineSegment(V(-23, 48, 0), V(-23, 34, 0)),
    Part.LineSegment(V(-23, 34, 0), V(-38, 34, 0)),
], False)
sketch14.addConstraint([
    Sketcher.Constraint("Coincident", 0, 2, 1, 1),
    Sketcher.Constraint("Coincident", 1, 2, 2, 1),
    Sketcher.Constraint("Coincident", 2, 2, 3, 1),
    Sketcher.Constraint("Coincident", 3, 2, 0, 1),
    Sketcher.Constraint("Coincident", 4, 2, 5, 1),
    Sketcher.Constraint("Coincident", 5, 2, 6, 1),
    Sketcher.Constraint("Coincident", 6, 2, 7, 1),
    Sketcher.Constraint("Coincident", 7, 2, 4, 1),
    Sketcher.Constraint("Vertical", 0),
    Sketcher.Constraint("Horizontal", 1),
    Sketcher.Constraint("Vertical", 2),
    Sketcher.Constraint("Horizontal", 3),
    Sketcher.Constraint("Vertical", 4),
    Sketcher.Constraint("Horizontal", 5),
    Sketcher.Constraint("Vertical", 6),
    Sketcher.Constraint("Horizontal", 7),
    Sketcher.Constraint("Symmetric", 3, 2, 4, 2, -1),
    Sketcher.Constraint("Symmetric", 1, 2, 6, 2, -1),
    Sketcher.Constraint("DistanceX", 1, 1, 1, 2, 15.0),
    Sketcher.Constraint("DistanceY", 0, 1, 0, 2, 13.5),
    Sketcher.Constraint("DistanceY", 2, 2, -1, 1, 48.0),
    Sketcher.Constraint("DistanceX", 0, 2, -1, 1, 37.5533),
])
pocket10 = doc.addObject("PartDesign::Pocket", "Pocket009")
body.addObject(pocket10)
pocket10.Profile = sketch14
pocket10.Length = 1.2
pocket10.Reversed = True

doc.recompute()
